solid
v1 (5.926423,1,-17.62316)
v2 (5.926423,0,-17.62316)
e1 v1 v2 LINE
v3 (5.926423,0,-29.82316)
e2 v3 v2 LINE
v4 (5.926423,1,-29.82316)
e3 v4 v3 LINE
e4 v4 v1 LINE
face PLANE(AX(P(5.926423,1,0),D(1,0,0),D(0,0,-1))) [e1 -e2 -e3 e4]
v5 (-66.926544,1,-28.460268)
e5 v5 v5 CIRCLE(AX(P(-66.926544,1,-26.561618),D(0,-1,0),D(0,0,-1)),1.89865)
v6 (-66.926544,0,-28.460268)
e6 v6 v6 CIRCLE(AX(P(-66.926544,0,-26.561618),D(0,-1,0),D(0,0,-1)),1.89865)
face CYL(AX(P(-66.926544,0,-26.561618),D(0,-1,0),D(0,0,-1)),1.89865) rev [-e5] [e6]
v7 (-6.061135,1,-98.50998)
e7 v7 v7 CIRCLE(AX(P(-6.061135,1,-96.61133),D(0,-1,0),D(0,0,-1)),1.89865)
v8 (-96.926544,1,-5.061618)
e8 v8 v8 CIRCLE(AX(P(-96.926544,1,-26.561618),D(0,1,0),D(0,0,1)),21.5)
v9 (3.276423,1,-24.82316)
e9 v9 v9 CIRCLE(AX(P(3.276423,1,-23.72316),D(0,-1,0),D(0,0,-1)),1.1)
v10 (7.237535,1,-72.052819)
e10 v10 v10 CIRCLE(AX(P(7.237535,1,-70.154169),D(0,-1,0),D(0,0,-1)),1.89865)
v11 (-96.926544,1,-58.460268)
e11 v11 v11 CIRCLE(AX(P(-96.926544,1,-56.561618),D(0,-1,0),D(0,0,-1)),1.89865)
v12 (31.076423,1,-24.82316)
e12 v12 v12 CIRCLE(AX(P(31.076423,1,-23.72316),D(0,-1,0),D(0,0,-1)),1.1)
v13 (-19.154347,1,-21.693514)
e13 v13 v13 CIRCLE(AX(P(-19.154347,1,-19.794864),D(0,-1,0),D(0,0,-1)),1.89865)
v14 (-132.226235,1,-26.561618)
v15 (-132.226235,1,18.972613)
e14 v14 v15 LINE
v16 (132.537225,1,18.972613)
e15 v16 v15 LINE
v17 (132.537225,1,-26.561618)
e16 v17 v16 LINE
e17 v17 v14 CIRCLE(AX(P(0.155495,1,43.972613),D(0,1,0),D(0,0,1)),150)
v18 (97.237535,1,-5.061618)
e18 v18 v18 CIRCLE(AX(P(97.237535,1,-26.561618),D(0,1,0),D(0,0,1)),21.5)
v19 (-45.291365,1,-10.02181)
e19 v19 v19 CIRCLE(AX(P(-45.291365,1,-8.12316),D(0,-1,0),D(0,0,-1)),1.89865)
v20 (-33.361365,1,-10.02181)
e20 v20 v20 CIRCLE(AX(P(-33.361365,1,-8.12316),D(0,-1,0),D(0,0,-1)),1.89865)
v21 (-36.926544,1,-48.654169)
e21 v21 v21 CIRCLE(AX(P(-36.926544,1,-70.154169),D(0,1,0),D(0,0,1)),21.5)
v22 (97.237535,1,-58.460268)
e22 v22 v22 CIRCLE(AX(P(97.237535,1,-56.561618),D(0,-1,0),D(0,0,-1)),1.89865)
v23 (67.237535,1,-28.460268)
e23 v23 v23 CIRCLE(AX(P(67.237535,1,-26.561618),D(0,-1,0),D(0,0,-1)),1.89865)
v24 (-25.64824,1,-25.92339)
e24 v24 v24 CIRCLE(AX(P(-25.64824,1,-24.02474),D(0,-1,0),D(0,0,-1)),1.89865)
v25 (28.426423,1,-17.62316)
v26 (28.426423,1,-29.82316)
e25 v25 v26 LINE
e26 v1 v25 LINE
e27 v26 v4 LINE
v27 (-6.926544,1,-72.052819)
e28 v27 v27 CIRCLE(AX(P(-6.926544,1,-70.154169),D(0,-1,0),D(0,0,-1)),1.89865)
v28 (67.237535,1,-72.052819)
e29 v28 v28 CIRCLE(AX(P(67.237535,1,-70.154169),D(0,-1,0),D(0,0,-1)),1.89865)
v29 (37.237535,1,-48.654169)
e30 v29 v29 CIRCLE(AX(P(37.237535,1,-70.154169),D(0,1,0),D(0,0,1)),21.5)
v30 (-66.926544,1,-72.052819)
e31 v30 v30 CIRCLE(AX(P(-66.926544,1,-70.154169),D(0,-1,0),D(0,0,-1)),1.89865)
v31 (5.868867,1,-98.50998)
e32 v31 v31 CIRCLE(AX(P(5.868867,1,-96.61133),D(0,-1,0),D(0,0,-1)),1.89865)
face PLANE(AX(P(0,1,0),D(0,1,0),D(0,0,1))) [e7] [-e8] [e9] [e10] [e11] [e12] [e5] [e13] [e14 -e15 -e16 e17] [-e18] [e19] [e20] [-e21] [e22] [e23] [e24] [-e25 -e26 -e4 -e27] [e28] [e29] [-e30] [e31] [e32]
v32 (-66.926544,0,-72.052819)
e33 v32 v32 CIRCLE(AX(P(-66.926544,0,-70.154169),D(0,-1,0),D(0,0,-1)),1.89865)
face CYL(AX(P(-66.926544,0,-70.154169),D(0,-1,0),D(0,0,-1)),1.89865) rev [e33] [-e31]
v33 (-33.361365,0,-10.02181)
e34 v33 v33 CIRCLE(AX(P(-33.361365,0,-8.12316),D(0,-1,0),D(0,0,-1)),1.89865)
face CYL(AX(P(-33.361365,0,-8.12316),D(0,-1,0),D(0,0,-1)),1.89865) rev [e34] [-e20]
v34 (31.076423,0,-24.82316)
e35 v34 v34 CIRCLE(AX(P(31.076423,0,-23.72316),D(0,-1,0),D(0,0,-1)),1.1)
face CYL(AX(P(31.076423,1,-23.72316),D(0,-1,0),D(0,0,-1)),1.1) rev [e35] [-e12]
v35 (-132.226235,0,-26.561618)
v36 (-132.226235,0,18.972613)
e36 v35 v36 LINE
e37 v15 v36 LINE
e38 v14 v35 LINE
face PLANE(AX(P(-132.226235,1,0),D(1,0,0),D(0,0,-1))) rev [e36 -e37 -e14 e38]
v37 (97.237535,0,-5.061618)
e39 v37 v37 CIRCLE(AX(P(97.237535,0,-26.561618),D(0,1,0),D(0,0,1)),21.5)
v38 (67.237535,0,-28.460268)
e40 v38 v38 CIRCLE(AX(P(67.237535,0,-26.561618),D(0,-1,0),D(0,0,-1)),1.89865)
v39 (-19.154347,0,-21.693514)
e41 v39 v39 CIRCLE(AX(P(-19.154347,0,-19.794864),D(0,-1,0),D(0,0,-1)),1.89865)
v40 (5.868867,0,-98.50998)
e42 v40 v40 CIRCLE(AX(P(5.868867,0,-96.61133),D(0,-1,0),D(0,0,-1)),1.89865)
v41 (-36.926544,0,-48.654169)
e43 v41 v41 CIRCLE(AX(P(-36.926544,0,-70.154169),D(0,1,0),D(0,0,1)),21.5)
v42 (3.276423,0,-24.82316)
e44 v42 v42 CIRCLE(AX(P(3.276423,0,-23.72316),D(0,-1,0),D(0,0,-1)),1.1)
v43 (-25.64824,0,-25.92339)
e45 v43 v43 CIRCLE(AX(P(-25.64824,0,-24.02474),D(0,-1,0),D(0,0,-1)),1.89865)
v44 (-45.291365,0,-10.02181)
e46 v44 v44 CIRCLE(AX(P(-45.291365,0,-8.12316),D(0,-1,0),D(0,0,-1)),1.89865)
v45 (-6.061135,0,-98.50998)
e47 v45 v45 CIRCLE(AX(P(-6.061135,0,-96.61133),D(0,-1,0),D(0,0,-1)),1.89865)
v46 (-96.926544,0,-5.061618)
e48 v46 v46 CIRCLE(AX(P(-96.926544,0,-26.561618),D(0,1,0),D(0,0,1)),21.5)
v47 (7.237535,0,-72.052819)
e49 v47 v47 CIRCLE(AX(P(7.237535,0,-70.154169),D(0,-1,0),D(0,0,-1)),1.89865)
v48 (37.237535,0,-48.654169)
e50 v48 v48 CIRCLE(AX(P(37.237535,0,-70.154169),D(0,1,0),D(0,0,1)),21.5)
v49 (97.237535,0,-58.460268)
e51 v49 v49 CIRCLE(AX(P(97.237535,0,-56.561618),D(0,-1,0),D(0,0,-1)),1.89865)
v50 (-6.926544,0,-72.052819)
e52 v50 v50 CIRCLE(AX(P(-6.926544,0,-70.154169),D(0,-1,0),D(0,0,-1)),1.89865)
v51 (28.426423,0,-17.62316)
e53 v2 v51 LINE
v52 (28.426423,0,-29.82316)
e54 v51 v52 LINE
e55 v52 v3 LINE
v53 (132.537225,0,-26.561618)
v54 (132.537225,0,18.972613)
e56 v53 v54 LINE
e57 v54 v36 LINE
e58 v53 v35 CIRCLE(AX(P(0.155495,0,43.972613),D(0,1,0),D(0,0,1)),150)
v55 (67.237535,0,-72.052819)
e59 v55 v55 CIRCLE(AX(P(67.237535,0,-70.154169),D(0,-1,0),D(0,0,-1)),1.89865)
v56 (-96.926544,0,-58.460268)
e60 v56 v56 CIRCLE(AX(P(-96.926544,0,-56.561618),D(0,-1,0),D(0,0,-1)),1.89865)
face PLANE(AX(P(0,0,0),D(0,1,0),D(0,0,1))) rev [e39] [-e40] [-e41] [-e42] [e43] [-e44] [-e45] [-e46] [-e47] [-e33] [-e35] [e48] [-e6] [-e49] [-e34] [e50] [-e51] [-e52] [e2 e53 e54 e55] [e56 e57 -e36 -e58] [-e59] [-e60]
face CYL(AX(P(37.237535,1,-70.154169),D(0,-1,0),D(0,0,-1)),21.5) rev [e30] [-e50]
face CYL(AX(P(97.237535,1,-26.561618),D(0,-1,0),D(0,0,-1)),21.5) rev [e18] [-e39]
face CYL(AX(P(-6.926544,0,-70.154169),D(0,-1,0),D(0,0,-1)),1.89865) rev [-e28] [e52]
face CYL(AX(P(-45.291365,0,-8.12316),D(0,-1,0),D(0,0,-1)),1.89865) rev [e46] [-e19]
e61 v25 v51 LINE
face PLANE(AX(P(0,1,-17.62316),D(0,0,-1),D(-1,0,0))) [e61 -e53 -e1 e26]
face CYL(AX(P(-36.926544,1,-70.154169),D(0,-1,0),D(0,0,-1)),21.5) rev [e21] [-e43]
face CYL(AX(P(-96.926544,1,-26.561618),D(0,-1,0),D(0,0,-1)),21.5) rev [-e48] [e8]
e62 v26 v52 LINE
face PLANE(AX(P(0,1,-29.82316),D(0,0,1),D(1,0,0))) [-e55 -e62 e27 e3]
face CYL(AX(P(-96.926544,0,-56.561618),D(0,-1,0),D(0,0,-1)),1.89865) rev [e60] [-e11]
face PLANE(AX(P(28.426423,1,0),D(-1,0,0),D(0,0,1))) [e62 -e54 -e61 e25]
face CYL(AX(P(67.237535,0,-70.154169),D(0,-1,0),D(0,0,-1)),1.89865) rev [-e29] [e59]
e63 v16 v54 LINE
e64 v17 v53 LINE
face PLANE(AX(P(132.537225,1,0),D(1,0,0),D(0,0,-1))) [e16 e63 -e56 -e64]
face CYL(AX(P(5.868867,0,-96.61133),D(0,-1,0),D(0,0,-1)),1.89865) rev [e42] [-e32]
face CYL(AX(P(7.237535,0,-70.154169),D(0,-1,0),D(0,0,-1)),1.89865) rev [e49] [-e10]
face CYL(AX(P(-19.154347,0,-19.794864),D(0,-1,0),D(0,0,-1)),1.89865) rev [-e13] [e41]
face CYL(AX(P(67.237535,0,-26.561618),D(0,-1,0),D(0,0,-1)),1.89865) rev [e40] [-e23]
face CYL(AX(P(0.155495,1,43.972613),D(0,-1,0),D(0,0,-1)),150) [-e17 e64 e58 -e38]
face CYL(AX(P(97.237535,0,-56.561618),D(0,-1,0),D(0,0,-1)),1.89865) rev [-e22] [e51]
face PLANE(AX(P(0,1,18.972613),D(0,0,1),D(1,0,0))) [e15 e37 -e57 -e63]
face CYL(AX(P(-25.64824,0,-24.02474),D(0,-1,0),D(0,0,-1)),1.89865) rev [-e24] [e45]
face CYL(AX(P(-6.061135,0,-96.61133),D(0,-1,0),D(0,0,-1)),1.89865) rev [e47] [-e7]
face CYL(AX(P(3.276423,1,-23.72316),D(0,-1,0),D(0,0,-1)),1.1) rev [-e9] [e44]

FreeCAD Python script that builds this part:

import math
import FreeCAD as App
import Part
import Sketcher

V = App.Vector
Q = App.Units.Quantity

doc = App.newDocument("Part")
body = doc.addObject("PartDesign::Body", "Body")

# Sketch on XZ plane
sketch1 = doc.addObject("Sketcher::SketchObject", "Sketch")
body.addObject(sketch1)
sketch1.AttachmentSupport = (doc.XZ_Plane, [""])
sketch1.MapMode = "FlatFace"
sketch1.addGeometry([
    Part.LineSegment(V(-132, 19, 0), V(133, 19, 0)),  # 0
    Part.LineSegment(V(133, 19, 0), V(133, -27, 0)),  # 1
    Part.ArcOfCircle(Part.Circle(V(0, 44, 0), V(0, 0, 1), 150), math.radians(-152), math.radians(-28)),  # 2
    Part.LineSegment(V(-132, -27, 0), V(-132, 19, 0)),  # 3
    Part.Circle(V(-97, -27, 0), V(0, 0, 1), 22),  # 4
    Part.Circle(V(97, -27, 0), V(0, 0, 1), 22),  # 5
    Part.Circle(V(-37, -70, 0), V(0, 0, 1), 22),  # 6
    Part.Circle(V(37, -70, 0), V(0, 0, 1), 22),  # 7
], False)
sketch1.addConstraint([
    Sketcher.Constraint("Coincident", 0, 2, 1, 1),
    Sketcher.Constraint("Coincident", 1, 2, 2, 2),
    Sketcher.Constraint("Coincident", 2, 1, 3, 1),
    Sketcher.Constraint("Coincident", 3, 2, 0, 1),
    Sketcher.Constraint("Horizontal", 0),
    Sketcher.Constraint("Vertical", 1),
    Sketcher.Constraint("Vertical", 3),
    Sketcher.Constraint("Equal", 4, 5),
    Sketcher.Constraint("Equal", 5, 6),
    Sketcher.Constraint("Equal", 6, 7),
    Sketcher.Constraint("Horizontal", 4, 3, 5, 3),
    Sketcher.Constraint("Horizontal", 6, 3, 7, 3),
    Sketcher.Constraint("Horizontal", 5, 3, 1, 2),
    Sketcher.Constraint("Horizontal", 1, 2, 2, 1),
    Sketcher.Constraint("Diameter", 4, Q("43 mm")),
    Sketcher.Constraint("Radius", 2, Q("150 mm")),
    Sketcher.Constraint("DistanceX", 4, 3, 6, 3, Q("60 mm")),
    Sketcher.Constraint("DistanceX", 7, 3, 5, 3, Q("60 mm")),
    Sketcher.Constraint("DistanceY", 0, 2, 2, 3, Q("25 mm")),
    Sketcher.Constraint("DistanceX", 0, 1, 0, 2, Q("264.763459 mm")),
    Sketcher.Constraint("DistanceY", 6, 3, -1, 1, Q("70.154169 mm")),
    Sketcher.Constraint("DistanceX", 4, 3, 2, 3, Q("97.082039 mm")),
    Sketcher.Constraint("DistanceX", 2, 3, 5, 3, Q("97.082039 mm")),
    Sketcher.Constraint("DistanceY", 6, 3, 4, 3, Q("43.592552 mm")),
    Sketcher.Constraint("DistanceX", -1, 1, 2, 3, Q("0.155495 mm")),
])
pad1 = doc.addObject("PartDesign::Pad", "Pad")
body.addObject(pad1)
pad1.Profile = sketch1
pad1.Length = 1
pad1.Reversed = True

# Sketch on XZ plane
sketch2 = doc.addObject("Sketcher::SketchObject", "Sketch001")
body.addObject(sketch2)
sketch2.AttachmentSupport = (doc.XZ_Plane, [""])
sketch2.MapMode = "FlatFace"
sketch2.addGeometry([
    Part.Circle(V(31.1, -23.7, 0), V(0, 0, 1), 1.1),  # 0
    Part.Circle(V(3.3, -23.7, 0), V(0, 0, 1), 1.1),  # 1
    Part.LineSegment(V(28.4, -29.8, 0), V(28.4, -17.6, 0)),  # 2
    Part.LineSegment(V(28.4, -17.6, 0), V(5.9, -17.6, 0)),  # 3
    Part.LineSegment(V(5.9, -17.6, 0), V(5.9, -29.8, 0)),  # 4
    Part.LineSegment(V(5.9, -29.8, 0), V(28.4, -29.8, 0)),  # 5
], False)
sketch2.addConstraint([
    Sketcher.Constraint("Coincident", 2, 2, 3, 1),
    Sketcher.Constraint("Coincident", 3, 2, 4, 1),
    Sketcher.Constraint("Coincident", 4, 2, 5, 1),
    Sketcher.Constraint("Coincident", 5, 2, 2, 1),
    Sketcher.Constraint("Vertical", 2),
    Sketcher.Constraint("Horizontal", 3),
    Sketcher.Constraint("Vertical", 4),
    Sketcher.Constraint("Horizontal", 5),
    Sketcher.Constraint("Equal", 0, 1),
    Sketcher.Constraint("Horizontal", 0, 3, 1, 3),
    Sketcher.Constraint("Diameter", 0, Q("2.2 mm")),
    Sketcher.Constraint("DistanceX", 3, 2, 3, 1, Q("22.5 mm")),
    Sketcher.Constraint("DistanceY", 2, 1, 2, 2, Q("12.2 mm")),
    Sketcher.Constraint("DistanceX", 1, 3, 0, 3, Q("27.8 mm")),
    Sketcher.Constraint("DistanceY", 0, 3, 2, 2, Q("6.1 mm")),
    Sketcher.Constraint("DistanceX", 2, 2, 0, 3, Q("2.65 mm")),
    Sketcher.Constraint("DistanceY", 0, 3, -1, 1, Q("23.72316 mm")),
    Sketcher.Constraint("DistanceX", -1, 1, 0, 3, Q("31.076423 mm")),
])
pocket1 = doc.addObject("PartDesign::Pocket", "Pocket")
body.addObject(pocket1)
pocket1.Profile = sketch2
pocket1.Type = "ThroughAll"

# Sketch on XZ plane
sketch3 = doc.addObject("Sketcher::SketchObject", "Sketch002")
body.addObject(sketch3)
sketch3.AttachmentSupport = (doc.XZ_Plane, [""])
sketch3.MapMode = "FlatFace"
sketch3.addGeometry([
    Part.Circle(V(97.2, -56.6, 0), V(0, 0, 1), 1.9),  # 0
    Part.Circle(V(67.2, -26.6, 0), V(0, 0, 1), 1.9),  # 1
    Part.Circle(V(67.2, -70.2, 0), V(0, 0, 1), 1.9),  # 2
    Part.Circle(V(7.2, -70.2, 0), V(0, 0, 1), 1.9),  # 3
    Part.Circle(V(-6.9, -70.2, 0), V(0, 0, 1), 1.9),  # 4
    Part.Circle(V(-66.9, -70.2, 0), V(0, 0, 1), 1.9),  # 5
    Part.Circle(V(-96.9, -56.6, 0), V(0, 0, 1), 1.9),  # 6
    Part.Circle(V(-66.9, -26.6, 0), V(0, 0, 1), 1.9),  # 7
    Part.Circle(V(-19.2, -19.8, 0), V(0, 0, 1), 1.9),  # 8
    Part.Circle(V(-45.3, -8.1, 0), V(0, 0, 1), 1.9),  # 9
    Part.Circle(V(-33.4, -8.1, 0), V(0, 0, 1), 1.9),  # 10
    Part.Circle(V(-6.1, -96.6, 0), V(0, 0, 1), 1.9),  # 11
    Part.Circle(V(5.9, -96.6, 0), V(0, 0, 1), 1.9),  # 12
    Part.Circle(V(-25.6, -24, 0), V(0, 0, 1), 1.9),  # 13
], False)
sketch3.addConstraint([
    Sketcher.Constraint("Equal", 0, 1),
    Sketcher.Constraint("Equal", 1, 2),
    Sketcher.Constraint("Equal", 2, 3),
    Sketcher.Constraint("Equal", 3, 4),
    Sketcher.Constraint("Equal", 4, 5),
    Sketcher.Constraint("Equal", 5, 6),
    Sketcher.Constraint("Equal", 6, 7),
    Sketcher.Constraint("Equal", 7, 8),
    Sketcher.Constraint("Equal", 8, 9),
    Sketcher.Constraint("Equal", 9, 10),
    Sketcher.Constraint("Equal", 10, 11),
    Sketcher.Constraint("Equal", 11, 12),
    Sketcher.Constraint("Equal", 12, 13),
    Sketcher.Constraint("Horizontal", 2, 3, 3, 3),
    Sketcher.Constraint("Horizontal", 3, 3, 4, 3),
    Sketcher.Constraint("Horizontal", 4, 3, 5, 3),
    Sketcher.Constraint("Horizontal", 0, 3, 6, 3),
    Sketcher.Constraint("Horizontal", 1, 3, 7, 3),
    Sketcher.Constraint("Horizontal", 9, 3, 10, 3),
    Sketcher.Constraint("Horizontal", 11, 3, 12, 3),
    Sketcher.Constraint("Vertical", 1, 3, 2, 3),
    Sketcher.Constraint("Vertical", 5, 3, 7, 3),
    Sketcher.Constraint("DistanceX", 1, 3, 0, 3, Q("30 mm")),
    Sketcher.Constraint("DistanceY", 0, 3, 1, 3, Q("30 mm")),
    Sketcher.Constraint("DistanceX", 3, 3, 2, 3, Q("60 mm")),
    Sketcher.Constraint("DistanceX", 5, 3, 4, 3, Q("60 mm")),
    Sketcher.Constraint("DistanceX", 6, 3, 5, 3, Q("30 mm")),
    Sketcher.Constraint("Diameter", 0, Q("3.7973 mm")),
    Sketcher.Constraint("DistanceX", 9, 3, 10, 3, Q("11.93 mm")),
    Sketcher.Constraint("DistanceY", 2, 3, -1, 1, Q("70.154169 mm")),
    Sketcher.Constraint("DistanceY", 9, 3, -1, 1, Q("8.12316 mm")),
    Sketcher.Constraint("DistanceY", 11, 3, -1, 1, Q("96.61133 mm")),
    Sketcher.Constraint("DistanceX", 13, 3, -1, 1, Q("25.64824 mm")),
    Sketcher.Constraint("DistanceY", 13, 3, -1, 1, Q("24.02474 mm")),
    Sketcher.Constraint("DistanceY", 2, 3, 0, 3, Q("13.592552 mm")),
    Sketcher.Constraint("DistanceX", 4, 3, 3, 3, Q("14.164079 mm")),
    Sketcher.Constraint("DistanceX", 8, 3, 3, 3, Q("26.391882 mm")),
    Sketcher.Constraint("DistanceX", 7, 3, 9, 3, Q("21.635179 mm")),
    Sketcher.Constraint("DistanceX", 4, 3, 11, 3, Q("0.865409 mm")),
    Sketcher.Constraint("DistanceX", 4, 3, 12, 3, Q("12.795411 mm")),
    Sketcher.Constraint("DistanceX", -1, 1, 0, 3, Q("97.237535 mm")),
    Sketcher.Constraint("DistanceY", 8, 3, -1, 1, Q("19.794864 mm")),
])
doc.recompute()
hole = doc.addObject("PartDesign::Hole", "Hole")
body.addObject(hole)
hole.Profile = sketch3
hole.ThreadType = "None"
hole.Diameter = 3.7973
hole.DepthType = "ThroughAll"

doc.recompute()
